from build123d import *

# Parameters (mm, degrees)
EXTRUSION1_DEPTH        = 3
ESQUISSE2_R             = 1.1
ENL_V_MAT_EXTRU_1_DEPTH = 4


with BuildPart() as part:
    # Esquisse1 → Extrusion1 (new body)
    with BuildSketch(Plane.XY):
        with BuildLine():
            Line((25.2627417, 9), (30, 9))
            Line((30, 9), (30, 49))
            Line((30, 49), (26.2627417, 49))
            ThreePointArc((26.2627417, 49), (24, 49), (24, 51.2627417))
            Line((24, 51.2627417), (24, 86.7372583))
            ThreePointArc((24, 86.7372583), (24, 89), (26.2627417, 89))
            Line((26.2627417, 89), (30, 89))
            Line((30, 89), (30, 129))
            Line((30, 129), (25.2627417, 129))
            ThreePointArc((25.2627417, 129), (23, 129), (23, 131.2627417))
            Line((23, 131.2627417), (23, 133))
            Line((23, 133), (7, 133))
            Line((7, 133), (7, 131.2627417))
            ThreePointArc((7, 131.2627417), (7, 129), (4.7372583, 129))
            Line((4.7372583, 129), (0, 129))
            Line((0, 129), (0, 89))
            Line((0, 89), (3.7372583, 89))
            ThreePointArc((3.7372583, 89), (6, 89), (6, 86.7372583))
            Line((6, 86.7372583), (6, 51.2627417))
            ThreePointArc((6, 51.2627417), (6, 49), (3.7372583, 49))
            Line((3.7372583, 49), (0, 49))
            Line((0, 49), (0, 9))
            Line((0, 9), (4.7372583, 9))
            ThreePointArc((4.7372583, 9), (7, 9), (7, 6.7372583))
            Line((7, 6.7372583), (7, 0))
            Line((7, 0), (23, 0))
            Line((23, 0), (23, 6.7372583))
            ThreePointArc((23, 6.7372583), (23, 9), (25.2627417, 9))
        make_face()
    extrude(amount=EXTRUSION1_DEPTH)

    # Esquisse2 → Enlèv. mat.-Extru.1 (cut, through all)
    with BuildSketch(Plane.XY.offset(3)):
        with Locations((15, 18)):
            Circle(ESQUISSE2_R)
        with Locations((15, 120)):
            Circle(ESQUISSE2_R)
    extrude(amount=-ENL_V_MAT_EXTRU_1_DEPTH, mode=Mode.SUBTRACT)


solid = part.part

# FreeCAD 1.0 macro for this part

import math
import FreeCAD as App
import Part
import Sketcher

V = App.Vector
Q = App.Units.Quantity

doc = App.newDocument("Part")
body = doc.addObject("PartDesign::Body", "Body")

sketch1 = body.newObject("Sketcher::SketchObject", "Sketch")
sketch1.AttachmentSupport = (doc.getObject("XY_Plane"), [""])
sketch1.MapMode = "FlatFace"
sketch1.addGeometry([
    Part.LineSegment(V(25.3, 9, 0), V(30, 9, 0)),
    Part.LineSegment(V(30, 9, 0), V(30, 49, 0)),
    Part.LineSegment(V(30, 49, 0), V(26.3, 49, 0)),
    Part.ArcOfCircle(Part.Circle(V(25.1, 50.1, 0), V(0, 0, 1), 1.6), math.radians(135), math.radians(315)),
    Part.LineSegment(V(24, 51.3, 0), V(24, 86.7, 0)),
    Part.ArcOfCircle(Part.Circle(V(25.1, 87.9, 0), V(0, 0, 1), 1.6), math.radians(45), math.radians(225)),
    Part.LineSegment(V(26.3, 89, 0), V(30, 89, 0)),
    Part.LineSegment(V(30, 89, 0), V(30, 129, 0)),
    Part.LineSegment(V(30, 129, 0), V(25.3, 129, 0)),
    Part.ArcOfCircle(Part.Circle(V(24.1, 130.1, 0), V(0, 0, 1), 1.6), math.radians(135), math.radians(315)),
    Part.LineSegment(V(23, 131.3, 0), V(23, 133, 0)),
    Part.LineSegment(V(23, 133, 0), V(7, 133, 0)),
    Part.LineSegment(V(7, 133, 0), V(7, 131.3, 0)),
    Part.ArcOfCircle(Part.Circle(V(5.9, 130.1, 0), V(0, 0, 1), 1.6), math.radians(-135), math.radians(45)),
    Part.LineSegment(V(4.7, 129, 0), V(0, 129, 0)),
    Part.LineSegment(V(0, 129, 0), V(0, 89, 0)),
    Part.LineSegment(V(0, 89, 0), V(3.7, 89, 0)),
    Part.ArcOfCircle(Part.Circle(V(4.9, 87.9, 0), V(0, 0, 1), 1.6), math.radians(-45), math.radians(135)),
    Part.LineSegment(V(6, 86.7, 0), V(6, 51.3, 0)),
    Part.ArcOfCircle(Part.Circle(V(4.9, 50.1, 0), V(0, 0, 1), 1.6), math.radians(-135), math.radians(45)),
    Part.LineSegment(V(3.7, 49, 0), V(0, 49, 0)),
    Part.LineSegment(V(0, 49, 0), V(0, 9, 0)),
    Part.LineSegment(V(0, 9, 0), V(4.7, 9, 0)),
    Part.ArcOfCircle(Part.Circle(V(5.9, 7.9, 0), V(0, 0, 1), 1.6), math.radians(-45), math.radians(135)),
    Part.LineSegment(V(7, 6.7, 0), V(7, 0, 0)),
    Part.LineSegment(V(7, 0, 0), V(23, 0, 0)),
    Part.LineSegment(V(23, 0, 0), V(23, 6.7, 0)),
    Part.ArcOfCircle(Part.Circle(V(24.1, 7.9, 0), V(0, 0, 1), 1.6), math.radians(45), math.radians(225)),
], False)
sketch1.addConstraint([
    Sketcher.Constraint("Coincident", 0, 2, 1, 1),
    Sketcher.Constraint("Coincident", 1, 2, 2, 1),
    Sketcher.Constraint("Coincident", 2, 2, 3, 2),
    Sketcher.Constraint("Coincident", 3, 1, 4, 1),
    Sketcher.Constraint("Coincident", 4, 2, 5, 2),
    Sketcher.Constraint("Coincident", 5, 1, 6, 1),
    Sketcher.Constraint("Coincident", 6, 2, 7, 1),
    Sketcher.Constraint("Coincident", 7, 2, 8, 1),
    Sketcher.Constraint("Coincident", 8, 2, 9, 2),
    Sketcher.Constraint("Coincident", 9, 1, 10, 1),
    Sketcher.Constraint("Coincident", 10, 2, 11, 1),
    Sketcher.Constraint("Coincident", 11, 2, 12, 1),
    Sketcher.Constraint("Coincident", 12, 2, 13, 2),
    Sketcher.Constraint("Coincident", 13, 1, 14, 1),
    Sketcher.Constraint("Coincident", 14, 2, 15, 1),
    Sketcher.Constraint("Coincident", 15, 2, 16, 1),
    Sketcher.Constraint("Coincident", 16, 2, 17, 2),
    Sketcher.Constraint("Coincident", 17, 1, 18, 1),
    Sketcher.Constraint("Coincident", 18, 2, 19, 2),
    Sketcher.Constraint("Coincident", 19, 1, 20, 1),
    Sketcher.Constraint("Coincident", 20, 2, 21, 1),
    Sketcher.Constraint("Coincident", 21, 2, 22, 1),
    Sketcher.Constraint("Coincident", 22, 2, 23, 2),
    Sketcher.Constraint("Coincident", 23, 1, 24, 1),
    Sketcher.Constraint("Coincident", 24, 2, 25, 1),
    Sketcher.Constraint("Coincident", 25, 2, 26, 1),
    Sketcher.Constraint("Coincident", 26, 2, 27, 2),
    Sketcher.Constraint("Coincident", 27, 1, 0, 1),
    Sketcher.Constraint("Horizontal", 0),
    Sketcher.Constraint("Vertical", 1),
    Sketcher.Constraint("Horizontal", 2),
    Sketcher.Constraint("Vertical", 4),
    Sketcher.Constraint("Horizontal", 6),
    Sketcher.Constraint("Vertical", 7),
    Sketcher.Constraint("Horizontal", 8),
    Sketcher.Constraint("Vertical", 10),
    Sketcher.Constraint("Horizontal", 11),
    Sketcher.Constraint("Vertical", 12),
    Sketcher.Constraint("Horizontal", 14),
    Sketcher.Constraint("Vertical", 15),
    Sketcher.Constraint("Horizontal", 16),
    Sketcher.Constraint("Vertical", 18),
    Sketcher.Constraint("Horizontal", 20),
    Sketcher.Constraint("Vertical", 21),
    Sketcher.Constraint("Horizontal", 22),
    Sketcher.Constraint("Vertical", 24),
    Sketcher.Constraint("Horizontal", 25),
    Sketcher.Constraint("Vertical", 26),
    Sketcher.Constraint("Equal", 3, 5),
    Sketcher.Constraint("Equal", 5, 9),
    Sketcher.Constraint("Equal", 9, 13),
    Sketcher.Constraint("Equal", 13, 17),
    Sketcher.Constraint("Equal", 17, 19),
    Sketcher.Constraint("Equal", 19, 23),
    Sketcher.Constraint("Equal", 23, 27),
    Sketcher.Constraint("PointOnObject", 14, 2, -2),
    Sketcher.Constraint("PointOnObject", 20, 2, -2),
    Sketcher.Constraint("PointOnObject", 24, 2, -1),
    Sketcher.Constraint("Horizontal", 9, 3, 13, 3),
    Sketcher.Constraint("Horizontal", 5, 3, 17, 3),
    Sketcher.Constraint("Horizontal", 3, 3, 19, 3),
    Sketcher.Constraint("Horizontal", 23, 3, 27, 3),
    Sketcher.Constraint("Horizontal", 9, 1, 12, 2),
    Sketcher.Constraint("Horizontal", 8, 2, 13, 1),
    Sketcher.Constraint("Horizontal", 6, 2, 15, 2),
    Sketcher.Constraint("Horizontal", 4, 2, 17, 1),
    Sketcher.Constraint("Horizontal", 3, 1, 18, 2),
    Sketcher.Constraint("Horizontal", 2, 2, 19, 1),
    Sketcher.Constraint("Horizontal", 0, 2, 21, 2),
    Sketcher.Constraint("Horizontal", 23, 1, 26, 2),
    Sketcher.Constraint("Vertical", 3, 3, 5, 3),
    Sketcher.Constraint("Vertical", 13, 3, 23, 3),
    Sketcher.Constraint("Vertical", 9, 3, 27, 3),
    Sketcher.Constraint("Vertical", 2, 2, 5, 1),
    Sketcher.Constraint("Vertical", 1, 2, 6, 2),
    Sketcher.Constraint("Vertical", 13, 1, 22, 2),
    Sketcher.Constraint("Vertical", 12, 2, 23, 1),
    Sketcher.Constraint("Equal", 8, 14),
    Sketcher.Constraint("Equal", 6, 16),
    Sketcher.Constraint("Equal", 1, 7),
    Sketcher.Constraint("Radius", 3, Q("1.6 mm")),
    Sketcher.Constraint("DistanceX", 11, 2, 11, 1, Q("16 mm")),
    Sketcher.Constraint("DistanceY", 1, 1, 1, 2, Q("40 mm")),
    Sketcher.Constraint("DistanceX", -1, 1, 0, 2, Q("30 mm")),
    Sketcher.Constraint("DistanceY", -1, 1, 0, 2, Q("9 mm")),
    Sketcher.Constraint("DistanceX", -1, 1, 3, 1, Q("24 mm")),
    Sketcher.Constraint("DistanceY", -1, 1, 5, 1, Q("89 mm")),
    Sketcher.Constraint("DistanceY", -1, 1, 10, 2, Q("133 mm")),
    Sketcher.Constraint("DistanceX", 9, 3, 5, 3, Q("1 mm")),
    Sketcher.Constraint("DistanceY", 3, 3, 9, 3, Q("80 mm")),
    Sketcher.Constraint("DistanceX", 0, 1, 0, 2, Q("4.737258 mm")),
    Sketcher.Constraint("DistanceX", -1, 1, 3, 3, Q("25.131371 mm")),
])
pad1 = body.newObject("PartDesign::Pad", "Pad")
pad1.Profile = sketch1
pad1.Length = 3

sketch2 = body.newObject("Sketcher::SketchObject", "Sketch001")
sketch2.AttachmentSupport = (doc.getObject("XY_Plane"), [""])
sketch2.MapMode = "FlatFace"
sketch2.AttachmentOffset = App.Placement(V(0, 0, 3), App.Rotation())
sketch2.addGeometry([
    Part.Circle(V(15, 18, 0), V(0, 0, 1), 1.1),
    Part.Circle(V(15, 120, 0), V(0, 0, 1), 1.1),
], False)
sketch2.addConstraint([
    Sketcher.Constraint("Equal", 0, 1),
    Sketcher.Constraint("Vertical", 0, 3, 1, 3),
    Sketcher.Constraint("Diameter", 0, Q("2.2 mm")),
    Sketcher.Constraint("DistanceX", -1, 1, 0, 3, Q("15 mm")),
    Sketcher.Constraint("DistanceY", -1, 1, 0, 3, Q("18 mm")),
    Sketcher.Constraint("DistanceY", -1, 1, 1, 3, Q("120 mm")),
])
pocket1 = body.newObject("PartDesign::Pocket", "Pocket")
pocket1.Profile = sketch2
pocket1.Type = "ThroughAll"

doc.recompute()
